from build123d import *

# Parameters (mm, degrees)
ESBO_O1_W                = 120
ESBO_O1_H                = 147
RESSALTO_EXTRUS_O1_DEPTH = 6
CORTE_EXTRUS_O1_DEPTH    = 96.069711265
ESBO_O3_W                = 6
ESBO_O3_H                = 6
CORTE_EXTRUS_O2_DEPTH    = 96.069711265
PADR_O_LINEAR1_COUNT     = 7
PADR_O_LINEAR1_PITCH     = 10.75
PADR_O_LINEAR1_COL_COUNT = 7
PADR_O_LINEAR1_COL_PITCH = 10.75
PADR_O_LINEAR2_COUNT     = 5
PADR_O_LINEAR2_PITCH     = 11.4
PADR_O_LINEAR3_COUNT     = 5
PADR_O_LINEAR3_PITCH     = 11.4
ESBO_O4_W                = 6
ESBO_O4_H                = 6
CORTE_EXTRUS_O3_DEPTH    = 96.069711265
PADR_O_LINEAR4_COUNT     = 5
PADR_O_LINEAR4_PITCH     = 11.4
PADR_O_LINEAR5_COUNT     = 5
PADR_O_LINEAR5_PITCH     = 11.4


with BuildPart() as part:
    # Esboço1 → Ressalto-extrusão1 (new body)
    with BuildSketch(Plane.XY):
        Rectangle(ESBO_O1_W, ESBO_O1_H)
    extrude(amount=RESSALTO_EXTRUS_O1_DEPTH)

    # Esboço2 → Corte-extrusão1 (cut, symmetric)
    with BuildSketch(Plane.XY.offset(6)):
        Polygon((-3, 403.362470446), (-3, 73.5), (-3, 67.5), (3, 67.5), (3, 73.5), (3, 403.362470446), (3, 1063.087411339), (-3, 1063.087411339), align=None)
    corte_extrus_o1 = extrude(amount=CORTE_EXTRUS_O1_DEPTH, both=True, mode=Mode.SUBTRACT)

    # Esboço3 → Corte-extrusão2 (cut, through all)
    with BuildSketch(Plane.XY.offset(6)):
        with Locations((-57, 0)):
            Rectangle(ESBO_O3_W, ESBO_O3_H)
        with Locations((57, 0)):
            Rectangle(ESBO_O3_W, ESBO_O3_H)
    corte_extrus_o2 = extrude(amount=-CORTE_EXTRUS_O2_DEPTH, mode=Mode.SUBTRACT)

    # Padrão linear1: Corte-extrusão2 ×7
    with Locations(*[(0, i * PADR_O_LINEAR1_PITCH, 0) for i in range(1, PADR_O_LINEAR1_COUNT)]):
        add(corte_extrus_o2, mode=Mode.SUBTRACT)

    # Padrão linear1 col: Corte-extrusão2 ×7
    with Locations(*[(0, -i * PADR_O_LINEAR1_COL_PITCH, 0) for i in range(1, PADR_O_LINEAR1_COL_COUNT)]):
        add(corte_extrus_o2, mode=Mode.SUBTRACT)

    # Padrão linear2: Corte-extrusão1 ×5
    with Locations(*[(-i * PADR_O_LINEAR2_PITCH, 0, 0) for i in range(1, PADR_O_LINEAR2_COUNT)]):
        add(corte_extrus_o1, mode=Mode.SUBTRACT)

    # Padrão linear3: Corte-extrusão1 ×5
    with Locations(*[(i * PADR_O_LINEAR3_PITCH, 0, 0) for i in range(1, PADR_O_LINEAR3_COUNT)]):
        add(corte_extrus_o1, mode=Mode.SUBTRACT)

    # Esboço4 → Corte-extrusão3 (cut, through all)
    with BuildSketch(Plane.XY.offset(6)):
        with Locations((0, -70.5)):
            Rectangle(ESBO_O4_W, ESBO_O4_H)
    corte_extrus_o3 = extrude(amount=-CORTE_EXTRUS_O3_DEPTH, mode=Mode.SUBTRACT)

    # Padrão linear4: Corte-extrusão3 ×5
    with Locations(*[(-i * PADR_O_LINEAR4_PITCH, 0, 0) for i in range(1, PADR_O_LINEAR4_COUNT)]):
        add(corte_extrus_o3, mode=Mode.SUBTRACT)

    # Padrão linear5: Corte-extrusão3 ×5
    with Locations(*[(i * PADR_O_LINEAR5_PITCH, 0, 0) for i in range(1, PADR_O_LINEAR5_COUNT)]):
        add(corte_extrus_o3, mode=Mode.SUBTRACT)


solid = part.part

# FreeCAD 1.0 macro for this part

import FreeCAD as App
import Part
import Sketcher

V = App.Vector

doc = App.newDocument("Part")
body = doc.addObject("PartDesign::Body", "Body")

sketch1 = body.newObject("Sketcher::SketchObject", "Sketch")
sketch1.AttachmentSupport = (doc.getObject("XY_Plane"), [""])
sketch1.MapMode = "FlatFace"
sketch1.addGeometry(Part.LineSegment(V(-60, 74, 0), V(-60, -74, 0)), False)
sketch1.addGeometry(Part.LineSegment(V(-60, -74, 0), V(60, -74, 0)), False)
sketch1.addGeometry(Part.LineSegment(V(60, -74, 0), V(60, 74, 0)), False)
sketch1.addGeometry(Part.LineSegment(V(60, 74, 0), V(-60, 74, 0)), False)
sketch1.addConstraint(Sketcher.Constraint("Coincident", 0, 2, 1, 1))
sketch1.addConstraint(Sketcher.Constraint("Coincident", 1, 2, 2, 1))
sketch1.addConstraint(Sketcher.Constraint("Coincident", 2, 2, 3, 1))
sketch1.addConstraint(Sketcher.Constraint("Coincident", 3, 2, 0, 1))
sketch1.addConstraint(Sketcher.Constraint("Vertical", 0))
sketch1.addConstraint(Sketcher.Constraint("Horizontal", 1))
sketch1.addConstraint(Sketcher.Constraint("Vertical", 2))
sketch1.addConstraint(Sketcher.Constraint("Horizontal", 3))
sketch1.addConstraint(Sketcher.Constraint("Symmetric", 0, 2, 2, 2, -1, 1))
sketch1.addConstraint(Sketcher.Constraint("DistanceX", 1, 1, 1, 2, 120.0))
sketch1.addConstraint(Sketcher.Constraint("DistanceY", 0, 2, 0, 1, 147.0))
pad1 = body.newObject("PartDesign::Pad", "Pad")
pad1.Profile = sketch1
pad1.Length = 6

sketch2 = body.newObject("Sketcher::SketchObject", "Sketch001")
sketch2.AttachmentSupport = (doc.getObject("XY_Plane"), [""])
sketch2.MapMode = "FlatFace"
sketch2.AttachmentOffset = App.Placement(V(0, 0, 6), App.Rotation())
sketch2.addGeometry(Part.LineSegment(V(-3, 68, 0), V(3, 68, 0)), False)
sketch2.addGeometry(Part.LineSegment(V(3, 68, 0), V(3, 1063, 0)), False)
sketch2.addGeometry(Part.LineSegment(V(3, 1063, 0), V(-3, 1063, 0)), False)
sketch2.addGeometry(Part.LineSegment(V(-3, 1063, 0), V(-3, 68, 0)), False)
sketch2.addConstraint(Sketcher.Constraint("Coincident", 0, 2, 1, 1))
sketch2.addConstraint(Sketcher.Constraint("Coincident", 1, 2, 2, 1))
sketch2.addConstraint(Sketcher.Constraint("Coincident", 2, 2, 3, 1))
sketch2.addConstraint(Sketcher.Constraint("Coincident", 3, 2, 0, 1))
sketch2.addConstraint(Sketcher.Constraint("Horizontal", 0))
sketch2.addConstraint(Sketcher.Constraint("Vertical", 1))
sketch2.addConstraint(Sketcher.Constraint("Horizontal", 2))
sketch2.addConstraint(Sketcher.Constraint("Vertical", 3))
sketch2.addConstraint(Sketcher.Constraint("DistanceX", 0, 1, 0, 2, 6.0))
sketch2.addConstraint(Sketcher.Constraint("DistanceX", -1, 1, 0, 2, 3.0))
sketch2.addConstraint(Sketcher.Constraint("DistanceY", -1, 1, 0, 2, 67.5))
sketch2.addConstraint(Sketcher.Constraint("DistanceY", 1, 1, 1, 2, 995.587411))
pocket1 = body.newObject("PartDesign::Pocket", "Pocket")
pocket1.Profile = sketch2
pocket1.Length = 192.139423
pocket1.Midplane = True

sketch3 = body.newObject("Sketcher::SketchObject", "Sketch002")
sketch3.AttachmentSupport = (doc.getObject("XY_Plane"), [""])
sketch3.MapMode = "FlatFace"
sketch3.AttachmentOffset = App.Placement(V(0, 0, 6), App.Rotation())
sketch3.addGeometry(Part.LineSegment(V(-60, 3, 0), V(-60, -3, 0)), False)
sketch3.addGeometry(Part.LineSegment(V(-60, -3, 0), V(-54, -3, 0)), False)
sketch3.addGeometry(Part.LineSegment(V(-54, -3, 0), V(-54, 3, 0)), False)
sketch3.addGeometry(Part.LineSegment(V(-54, 3, 0), V(-60, 3, 0)), False)
sketch3.addGeometry(Part.LineSegment(V(54, 3, 0), V(54, -3, 0)), False)
sketch3.addGeometry(Part.LineSegment(V(54, -3, 0), V(60, -3, 0)), False)
sketch3.addGeometry(Part.LineSegment(V(60, -3, 0), V(60, 3, 0)), False)
sketch3.addGeometry(Part.LineSegment(V(60, 3, 0), V(54, 3, 0)), False)
sketch3.addConstraint(Sketcher.Constraint("Coincident", 0, 2, 1, 1))
sketch3.addConstraint(Sketcher.Constraint("Coincident", 1, 2, 2, 1))
sketch3.addConstraint(Sketcher.Constraint("Coincident", 2, 2, 3, 1))
sketch3.addConstraint(Sketcher.Constraint("Coincident", 3, 2, 0, 1))
sketch3.addConstraint(Sketcher.Constraint("Coincident", 4, 2, 5, 1))
sketch3.addConstraint(Sketcher.Constraint("Coincident", 5, 2, 6, 1))
sketch3.addConstraint(Sketcher.Constraint("Coincident", 6, 2, 7, 1))
sketch3.addConstraint(Sketcher.Constraint("Coincident", 7, 2, 4, 1))
sketch3.addConstraint(Sketcher.Constraint("Vertical", 0))
sketch3.addConstraint(Sketcher.Constraint("Horizontal", 1))
sketch3.addConstraint(Sketcher.Constraint("Vertical", 2))
sketch3.addConstraint(Sketcher.Constraint("Horizontal", 3))
sketch3.addConstraint(Sketcher.Constraint("Vertical", 4))
sketch3.addConstraint(Sketcher.Constraint("Horizontal", 5))
sketch3.addConstraint(Sketcher.Constraint("Vertical", 6))
sketch3.addConstraint(Sketcher.Constraint("Horizontal", 7))
sketch3.addConstraint(Sketcher.Constraint("Symmetric", 2, 2, 4, 2, -1, 1))
sketch3.addConstraint(Sketcher.Constraint("Symmetric", 0, 2, 6, 2, -1, 1))
sketch3.addConstraint(Sketcher.Constraint("Horizontal", 1, 2, 4, 2))
sketch3.addConstraint(Sketcher.Constraint("Equal", 7, 0))
sketch3.addConstraint(Sketcher.Constraint("DistanceX", 1, 1, 1, 2, 6.0))
sketch3.addConstraint(Sketcher.Constraint("DistanceX", 0, 2, -1, 1, 60.0))
pocket2 = body.newObject("PartDesign::Pocket", "Pocket001")
pocket2.Profile = sketch3
pocket2.Type = "ThroughAll"
doc.recompute()

linearpattern = body.newObject("PartDesign::LinearPattern", "LinearPattern")
linearpattern.Originals = [pocket2]
linearpattern.Direction = (doc.getObject("Y_Axis"), [""])
linearpattern.Mode = "offset"
linearpattern.Offset = 10.75
linearpattern.Occurrences = 7
body.Tip = linearpattern
doc.recompute()

linearpattern2 = body.newObject("PartDesign::LinearPattern", "LinearPattern001")
linearpattern2.Originals = [pocket2]
linearpattern2.Direction = (doc.getObject("Y_Axis"), [""])
linearpattern2.Mode = "offset"
linearpattern2.Offset = 10.75
linearpattern2.Occurrences = 7
linearpattern2.Reversed = True
body.Tip = linearpattern2
doc.recompute()

linearpattern3 = body.newObject("PartDesign::LinearPattern", "LinearPattern002")
linearpattern3.Originals = [pocket1]
linearpattern3.Direction = (doc.getObject("X_Axis"), [""])
linearpattern3.Mode = "offset"
linearpattern3.Offset = 11.4
linearpattern3.Occurrences = 5
linearpattern3.Reversed = True
body.Tip = linearpattern3
doc.recompute()

linearpattern4 = body.newObject("PartDesign::LinearPattern", "LinearPattern003")
linearpattern4.Originals = [pocket1]
linearpattern4.Direction = (doc.getObject("X_Axis"), [""])
linearpattern4.Mode = "offset"
linearpattern4.Offset = 11.4
linearpattern4.Occurrences = 5
body.Tip = linearpattern4

sketch4 = body.newObject("Sketcher::SketchObject", "Sketch003")
sketch4.AttachmentSupport = (doc.getObject("XY_Plane"), [""])
sketch4.MapMode = "FlatFace"
sketch4.AttachmentOffset = App.Placement(V(0, 0, 6), App.Rotation())
sketch4.addGeometry(Part.LineSegment(V(-3, -68, 0), V(-3, -74, 0)), False)
sketch4.addGeometry(Part.LineSegment(V(-3, -74, 0), V(3, -74, 0)), False)
sketch4.addGeometry(Part.LineSegment(V(3, -74, 0), V(3, -68, 0)), False)
sketch4.addGeometry(Part.LineSegment(V(3, -68, 0), V(-3, -68, 0)), False)
sketch4.addConstraint(Sketcher.Constraint("Coincident", 0, 2, 1, 1))
sketch4.addConstraint(Sketcher.Constraint("Coincident", 1, 2, 2, 1))
sketch4.addConstraint(Sketcher.Constraint("Coincident", 2, 2, 3, 1))
sketch4.addConstraint(Sketcher.Constraint("Coincident", 3, 2, 0, 1))
sketch4.addConstraint(Sketcher.Constraint("Vertical", 0))
sketch4.addConstraint(Sketcher.Constraint("Horizontal", 1))
sketch4.addConstraint(Sketcher.Constraint("Vertical", 2))
sketch4.addConstraint(Sketcher.Constraint("Horizontal", 3))
sketch4.addConstraint(Sketcher.Constraint("Equal", 3, 0))
sketch4.addConstraint(Sketcher.Constraint("DistanceX", 1, 1, 1, 2, 6.0))
sketch4.addConstraint(Sketcher.Constraint("DistanceX", 0, 2, -1, 1, 3.0))
sketch4.addConstraint(Sketcher.Constraint("DistanceY", 0, 2, -1, 1, 73.5))
pocket3 = body.newObject("PartDesign::Pocket", "Pocket002")
pocket3.Profile = sketch4
pocket3.Type = "ThroughAll"
doc.recompute()

linearpattern5 = body.newObject("PartDesign::LinearPattern", "LinearPattern004")
linearpattern5.Originals = [pocket3]
linearpattern5.Direction = (doc.getObject("X_Axis"), [""])
linearpattern5.Mode = "offset"
linearpattern5.Offset = 11.4
linearpattern5.Occurrences = 5
linearpattern5.Reversed = True
body.Tip = linearpattern5
doc.recompute()

linearpattern6 = body.newObject("PartDesign::LinearPattern", "LinearPattern005")
linearpattern6.Originals = [pocket3]
linearpattern6.Direction = (doc.getObject("X_Axis"), [""])
linearpattern6.Mode = "offset"
linearpattern6.Offset = 11.4
linearpattern6.Occurrences = 5
body.Tip = linearpattern6

doc.recompute()
